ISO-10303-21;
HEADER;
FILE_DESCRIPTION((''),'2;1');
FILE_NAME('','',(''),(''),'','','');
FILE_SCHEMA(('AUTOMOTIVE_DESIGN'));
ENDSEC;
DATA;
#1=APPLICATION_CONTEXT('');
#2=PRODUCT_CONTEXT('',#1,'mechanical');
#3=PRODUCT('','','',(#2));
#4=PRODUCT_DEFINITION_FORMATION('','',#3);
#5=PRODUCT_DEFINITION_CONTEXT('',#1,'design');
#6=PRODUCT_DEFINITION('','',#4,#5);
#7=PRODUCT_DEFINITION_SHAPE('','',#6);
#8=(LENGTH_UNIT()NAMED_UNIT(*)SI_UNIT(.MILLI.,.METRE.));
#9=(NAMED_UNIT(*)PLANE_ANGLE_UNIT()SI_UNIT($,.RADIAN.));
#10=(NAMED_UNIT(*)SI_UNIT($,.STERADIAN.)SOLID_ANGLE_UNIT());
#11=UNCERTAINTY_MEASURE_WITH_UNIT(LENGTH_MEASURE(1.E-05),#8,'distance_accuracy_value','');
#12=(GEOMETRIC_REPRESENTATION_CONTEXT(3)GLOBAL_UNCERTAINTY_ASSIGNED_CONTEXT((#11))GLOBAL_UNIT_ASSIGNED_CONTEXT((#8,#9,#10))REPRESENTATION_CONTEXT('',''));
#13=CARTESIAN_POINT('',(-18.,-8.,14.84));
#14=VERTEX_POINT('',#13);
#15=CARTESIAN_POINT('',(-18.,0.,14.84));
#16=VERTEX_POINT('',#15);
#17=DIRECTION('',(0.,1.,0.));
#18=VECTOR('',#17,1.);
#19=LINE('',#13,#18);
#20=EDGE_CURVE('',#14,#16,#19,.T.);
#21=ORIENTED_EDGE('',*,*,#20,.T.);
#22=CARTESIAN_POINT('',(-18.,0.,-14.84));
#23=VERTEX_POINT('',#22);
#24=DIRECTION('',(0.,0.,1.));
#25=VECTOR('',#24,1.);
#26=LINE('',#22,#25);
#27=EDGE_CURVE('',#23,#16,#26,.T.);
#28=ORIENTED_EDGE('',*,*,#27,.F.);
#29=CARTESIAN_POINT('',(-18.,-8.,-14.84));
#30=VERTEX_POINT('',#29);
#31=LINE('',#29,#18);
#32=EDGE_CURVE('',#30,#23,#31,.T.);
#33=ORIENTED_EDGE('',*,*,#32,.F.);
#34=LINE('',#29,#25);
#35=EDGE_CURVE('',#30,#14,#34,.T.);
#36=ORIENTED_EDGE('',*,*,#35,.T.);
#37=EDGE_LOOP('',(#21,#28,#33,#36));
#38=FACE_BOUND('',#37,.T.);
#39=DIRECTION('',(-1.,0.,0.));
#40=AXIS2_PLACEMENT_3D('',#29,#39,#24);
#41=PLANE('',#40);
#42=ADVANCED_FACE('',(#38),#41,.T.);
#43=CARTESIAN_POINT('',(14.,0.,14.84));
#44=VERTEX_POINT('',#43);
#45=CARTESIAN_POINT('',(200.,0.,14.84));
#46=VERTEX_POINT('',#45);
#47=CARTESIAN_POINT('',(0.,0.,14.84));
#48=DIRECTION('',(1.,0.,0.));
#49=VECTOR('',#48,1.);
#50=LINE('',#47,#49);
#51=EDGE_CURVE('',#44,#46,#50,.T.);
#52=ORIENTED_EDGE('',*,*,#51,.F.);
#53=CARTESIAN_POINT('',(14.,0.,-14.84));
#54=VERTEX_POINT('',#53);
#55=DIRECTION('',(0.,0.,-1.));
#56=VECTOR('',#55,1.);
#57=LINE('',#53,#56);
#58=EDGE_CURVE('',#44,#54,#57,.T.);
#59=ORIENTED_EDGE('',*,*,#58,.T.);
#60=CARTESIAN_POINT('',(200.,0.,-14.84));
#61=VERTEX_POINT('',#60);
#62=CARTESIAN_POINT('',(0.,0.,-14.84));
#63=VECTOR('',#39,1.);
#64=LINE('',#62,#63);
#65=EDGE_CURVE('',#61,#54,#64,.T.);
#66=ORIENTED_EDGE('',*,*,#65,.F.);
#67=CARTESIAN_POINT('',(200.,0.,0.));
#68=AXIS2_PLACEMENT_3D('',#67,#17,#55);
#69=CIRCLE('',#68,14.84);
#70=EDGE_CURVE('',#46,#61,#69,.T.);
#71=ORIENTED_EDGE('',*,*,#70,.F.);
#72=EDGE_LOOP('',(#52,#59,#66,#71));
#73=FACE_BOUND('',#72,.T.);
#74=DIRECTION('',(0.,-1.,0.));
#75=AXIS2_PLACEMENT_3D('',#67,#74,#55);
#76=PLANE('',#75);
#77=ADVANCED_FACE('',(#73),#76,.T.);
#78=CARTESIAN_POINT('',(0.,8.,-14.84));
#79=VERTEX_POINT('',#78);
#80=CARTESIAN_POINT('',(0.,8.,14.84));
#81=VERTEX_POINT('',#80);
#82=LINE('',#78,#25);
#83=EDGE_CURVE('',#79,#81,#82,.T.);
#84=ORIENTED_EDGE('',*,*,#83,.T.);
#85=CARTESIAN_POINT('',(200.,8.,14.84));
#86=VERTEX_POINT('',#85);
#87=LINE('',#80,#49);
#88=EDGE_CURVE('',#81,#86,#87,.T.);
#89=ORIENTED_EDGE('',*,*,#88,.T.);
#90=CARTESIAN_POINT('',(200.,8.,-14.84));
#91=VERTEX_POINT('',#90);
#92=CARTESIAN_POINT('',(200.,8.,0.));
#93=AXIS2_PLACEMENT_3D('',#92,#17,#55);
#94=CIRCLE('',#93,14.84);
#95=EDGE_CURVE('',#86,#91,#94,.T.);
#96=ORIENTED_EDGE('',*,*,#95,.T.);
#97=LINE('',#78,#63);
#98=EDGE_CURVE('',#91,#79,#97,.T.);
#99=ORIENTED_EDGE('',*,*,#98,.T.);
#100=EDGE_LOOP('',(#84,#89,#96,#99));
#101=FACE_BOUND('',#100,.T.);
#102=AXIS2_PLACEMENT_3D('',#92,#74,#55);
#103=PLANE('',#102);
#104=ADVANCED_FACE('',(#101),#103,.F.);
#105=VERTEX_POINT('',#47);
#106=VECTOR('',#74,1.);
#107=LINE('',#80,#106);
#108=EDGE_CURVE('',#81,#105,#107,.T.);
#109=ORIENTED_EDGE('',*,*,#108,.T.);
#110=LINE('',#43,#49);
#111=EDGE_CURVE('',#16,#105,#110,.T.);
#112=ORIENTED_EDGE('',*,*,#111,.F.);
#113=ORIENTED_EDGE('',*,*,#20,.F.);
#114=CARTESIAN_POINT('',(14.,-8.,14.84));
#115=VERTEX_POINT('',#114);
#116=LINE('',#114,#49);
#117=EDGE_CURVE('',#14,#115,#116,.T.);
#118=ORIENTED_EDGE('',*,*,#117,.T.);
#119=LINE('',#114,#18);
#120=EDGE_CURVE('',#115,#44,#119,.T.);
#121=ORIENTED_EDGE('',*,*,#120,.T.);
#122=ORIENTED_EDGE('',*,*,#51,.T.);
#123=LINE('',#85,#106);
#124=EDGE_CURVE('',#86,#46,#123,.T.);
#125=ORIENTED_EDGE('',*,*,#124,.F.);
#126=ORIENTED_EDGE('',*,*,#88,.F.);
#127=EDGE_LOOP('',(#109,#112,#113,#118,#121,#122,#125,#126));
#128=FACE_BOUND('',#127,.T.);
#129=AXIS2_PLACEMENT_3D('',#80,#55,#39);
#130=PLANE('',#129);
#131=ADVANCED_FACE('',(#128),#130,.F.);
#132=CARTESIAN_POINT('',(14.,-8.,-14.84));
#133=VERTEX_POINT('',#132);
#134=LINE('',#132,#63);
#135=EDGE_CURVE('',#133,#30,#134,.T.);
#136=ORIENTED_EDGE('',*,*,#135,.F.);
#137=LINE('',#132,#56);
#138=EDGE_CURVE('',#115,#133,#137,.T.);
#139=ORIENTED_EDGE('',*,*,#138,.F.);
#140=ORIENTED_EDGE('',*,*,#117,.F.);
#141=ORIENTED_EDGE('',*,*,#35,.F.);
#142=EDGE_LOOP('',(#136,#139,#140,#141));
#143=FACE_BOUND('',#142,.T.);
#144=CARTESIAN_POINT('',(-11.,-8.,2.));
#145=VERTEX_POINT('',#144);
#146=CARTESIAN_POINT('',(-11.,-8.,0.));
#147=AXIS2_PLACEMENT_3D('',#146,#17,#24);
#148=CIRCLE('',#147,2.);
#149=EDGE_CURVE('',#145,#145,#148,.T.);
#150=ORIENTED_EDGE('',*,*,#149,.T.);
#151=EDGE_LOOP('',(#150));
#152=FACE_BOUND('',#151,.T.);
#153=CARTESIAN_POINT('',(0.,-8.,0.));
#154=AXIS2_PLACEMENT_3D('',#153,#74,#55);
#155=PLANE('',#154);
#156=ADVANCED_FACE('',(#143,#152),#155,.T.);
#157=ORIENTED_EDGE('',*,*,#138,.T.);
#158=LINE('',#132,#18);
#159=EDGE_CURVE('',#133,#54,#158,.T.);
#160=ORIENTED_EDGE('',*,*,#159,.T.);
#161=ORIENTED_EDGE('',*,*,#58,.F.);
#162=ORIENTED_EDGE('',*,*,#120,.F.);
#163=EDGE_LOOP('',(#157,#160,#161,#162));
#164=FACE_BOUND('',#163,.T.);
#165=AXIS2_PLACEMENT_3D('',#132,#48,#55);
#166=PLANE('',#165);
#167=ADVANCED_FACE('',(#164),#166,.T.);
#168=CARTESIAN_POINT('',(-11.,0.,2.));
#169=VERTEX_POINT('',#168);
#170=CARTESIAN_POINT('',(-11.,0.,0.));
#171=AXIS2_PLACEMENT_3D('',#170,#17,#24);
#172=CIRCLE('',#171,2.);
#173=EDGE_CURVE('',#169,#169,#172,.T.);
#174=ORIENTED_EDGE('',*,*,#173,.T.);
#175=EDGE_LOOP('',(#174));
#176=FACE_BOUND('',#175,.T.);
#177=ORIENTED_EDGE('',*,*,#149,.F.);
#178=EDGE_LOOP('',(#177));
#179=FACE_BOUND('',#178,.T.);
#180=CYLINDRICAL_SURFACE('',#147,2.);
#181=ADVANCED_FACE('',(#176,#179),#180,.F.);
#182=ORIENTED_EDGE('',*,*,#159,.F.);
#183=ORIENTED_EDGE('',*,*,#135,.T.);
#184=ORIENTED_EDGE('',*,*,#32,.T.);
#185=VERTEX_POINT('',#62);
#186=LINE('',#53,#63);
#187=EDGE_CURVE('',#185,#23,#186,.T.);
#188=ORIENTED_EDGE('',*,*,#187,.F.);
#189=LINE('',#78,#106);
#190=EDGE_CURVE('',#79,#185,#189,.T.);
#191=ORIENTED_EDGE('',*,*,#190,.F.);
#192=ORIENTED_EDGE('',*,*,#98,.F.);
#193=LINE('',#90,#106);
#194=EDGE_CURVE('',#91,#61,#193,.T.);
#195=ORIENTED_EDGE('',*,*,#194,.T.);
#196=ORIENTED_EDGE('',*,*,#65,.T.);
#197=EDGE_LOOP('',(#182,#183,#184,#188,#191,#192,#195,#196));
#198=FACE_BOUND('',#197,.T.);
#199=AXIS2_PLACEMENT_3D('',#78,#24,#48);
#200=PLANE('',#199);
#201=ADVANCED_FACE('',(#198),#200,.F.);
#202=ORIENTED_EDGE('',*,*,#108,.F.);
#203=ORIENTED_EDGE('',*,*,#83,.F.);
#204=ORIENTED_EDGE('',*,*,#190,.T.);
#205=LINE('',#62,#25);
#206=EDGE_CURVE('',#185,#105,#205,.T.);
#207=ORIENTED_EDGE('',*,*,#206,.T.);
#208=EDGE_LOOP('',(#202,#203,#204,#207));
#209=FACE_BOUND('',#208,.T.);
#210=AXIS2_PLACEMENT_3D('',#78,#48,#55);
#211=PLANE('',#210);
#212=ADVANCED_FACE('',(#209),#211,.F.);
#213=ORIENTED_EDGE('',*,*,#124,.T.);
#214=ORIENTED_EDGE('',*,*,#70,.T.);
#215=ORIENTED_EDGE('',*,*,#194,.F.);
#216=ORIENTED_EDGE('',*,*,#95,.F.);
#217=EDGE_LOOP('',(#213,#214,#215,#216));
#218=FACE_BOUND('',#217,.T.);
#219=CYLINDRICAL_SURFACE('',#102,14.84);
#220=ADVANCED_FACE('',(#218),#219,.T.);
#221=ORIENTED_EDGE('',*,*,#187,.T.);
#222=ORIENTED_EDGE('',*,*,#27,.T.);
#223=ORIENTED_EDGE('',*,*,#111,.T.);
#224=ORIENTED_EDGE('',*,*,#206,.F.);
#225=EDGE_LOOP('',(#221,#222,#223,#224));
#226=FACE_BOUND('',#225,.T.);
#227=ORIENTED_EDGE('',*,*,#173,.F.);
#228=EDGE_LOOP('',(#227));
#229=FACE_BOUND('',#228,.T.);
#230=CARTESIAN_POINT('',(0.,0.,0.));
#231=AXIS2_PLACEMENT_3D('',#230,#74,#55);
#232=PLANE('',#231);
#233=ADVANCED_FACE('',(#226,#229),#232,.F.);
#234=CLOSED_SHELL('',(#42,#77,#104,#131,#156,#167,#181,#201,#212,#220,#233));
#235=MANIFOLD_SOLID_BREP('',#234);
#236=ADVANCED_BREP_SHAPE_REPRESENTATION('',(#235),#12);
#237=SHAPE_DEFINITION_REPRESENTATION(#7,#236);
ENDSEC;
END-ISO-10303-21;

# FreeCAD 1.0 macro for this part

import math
import FreeCAD as App
import Part
import Sketcher

V = App.Vector


def add_polygon(sketch, points):
    """Adds a closed chain of lines whose ends are joined by coincident constraints."""
    first, n = sketch.GeometryCount, len(points)
    for a, b in zip(points, points[1:] + points[:1]):
        sketch.addGeometry(Part.LineSegment(App.Vector(*a, 0), App.Vector(*b, 0)), False)
    for i in range(n):
        sketch.addConstraint(Sketcher.Constraint("Coincident", first + i, 2, first + (i + 1) % n, 1))

doc = App.newDocument("Part")
params = doc.addObject("Spreadsheet::Sheet", "Params")
for row, (alias, value) in enumerate([
    ("sketch1_width", "200 mm"),
    ("sketch1_radius", "14.84 mm"),
    ("pad1_length", "8 mm"),
    ("sketch2_diameter", "4 mm"),
    ("sketch2_width", "32 mm"),
    ("sketch2_height", "29.68 mm"),
    ("pad2_length", "8 mm"),
], start=1):
    params.set(f"A{row}", alias)
    params.set(f"B{row}", "=" + value)
    params.setAlias(f"B{row}", alias)

body = doc.addObject("PartDesign::Body", "Body")

# Sketch on XZ plane
sketch1 = body.newObject("Sketcher::SketchObject", "Sketch")
sketch1.AttachmentSupport = (doc.getObject("XZ_Plane"), [""])
sketch1.MapMode = "FlatFace"
sketch1.addGeometry([
    Part.LineSegment(V(200, -14.84, 0), V(0, -14.84, 0)),
    Part.LineSegment(V(0, -14.84, 0), V(0, 14.84, 0)),
    Part.LineSegment(V(0, 14.84, 0), V(200, 14.84, 0)),
    Part.ArcOfCircle(Part.Circle(V(200, 0, 0), V(0, 0, 1), 14.84), math.radians(-90), math.radians(90)),
], False)
sketch1.addConstraint([
    Sketcher.Constraint("Coincident", 0, 2, 1, 1),
    Sketcher.Constraint("Coincident", 1, 2, 2, 1),
    Sketcher.Constraint("Tangent", 2, 2, 3, 2),
    Sketcher.Constraint("Tangent", 3, 1, 0, 1),
    Sketcher.Constraint("Horizontal", 0),
    Sketcher.Constraint("Vertical", 1),
    Sketcher.Constraint("Horizontal", 2),
    Sketcher.Constraint("Symmetric", 0, 2, 1, 2, -1, 1),
    Sketcher.Constraint("DistanceX", 0, 2, 0, 1, 200.0),
    Sketcher.Constraint("Radius", 3, 14.84),
])
sketch1.setExpression("Constraints[8]", "Params.sketch1_width")
sketch1.setExpression("Constraints[9]", "Params.sketch1_radius")
pad1 = body.newObject("PartDesign::Pad", "Pad")
pad1.Profile = sketch1
pad1.setExpression("Length", "Params.pad1_length")
pad1.Reversed = True

# Sketch on XZ plane
sketch2 = body.newObject("Sketcher::SketchObject", "Sketch001")
sketch2.AttachmentSupport = (doc.getObject("XZ_Plane"), [""])
sketch2.MapMode = "FlatFace"
add_polygon(sketch2, [(-18, -14.84), (-18, 14.84), (14, 14.84), (14, -14.84)])  # lines 0-3
sketch2.addGeometry(Part.Circle(V(-11, 0, 0), V(0, 0, 1), 2), False)  # 4
sketch2.addConstraint([
    Sketcher.Constraint("Vertical", 0),
    Sketcher.Constraint("Horizontal", 1),
    Sketcher.Constraint("Vertical", 2),
    Sketcher.Constraint("Horizontal", 3),
    Sketcher.Constraint("PointOnObject", 4, 3, -1),
    Sketcher.Constraint("Diameter", 4, 4.0),
    Sketcher.Constraint("DistanceX", 1, 1, 1, 2, 32.0),
    Sketcher.Constraint("DistanceX", 4, 3, -1, 1, 11.0),
    Sketcher.Constraint("DistanceX", 0, 2, -1, 1, 18.0),
    Sketcher.Constraint("DistanceY", 0, 1, 0, 2, 29.68),
    Sketcher.Constraint("DistanceY", -1, 1, 0, 2, 14.84),
])
sketch2.setExpression("Constraints[9]", "Params.sketch2_diameter")
sketch2.setExpression("Constraints[10]", "Params.sketch2_width")
sketch2.setExpression("Constraints[13]", "Params.sketch2_height")
pad2 = body.newObject("PartDesign::Pad", "Pad001")
pad2.Profile = sketch2
pad2.setExpression("Length", "Params.pad2_length")

doc.recompute()
